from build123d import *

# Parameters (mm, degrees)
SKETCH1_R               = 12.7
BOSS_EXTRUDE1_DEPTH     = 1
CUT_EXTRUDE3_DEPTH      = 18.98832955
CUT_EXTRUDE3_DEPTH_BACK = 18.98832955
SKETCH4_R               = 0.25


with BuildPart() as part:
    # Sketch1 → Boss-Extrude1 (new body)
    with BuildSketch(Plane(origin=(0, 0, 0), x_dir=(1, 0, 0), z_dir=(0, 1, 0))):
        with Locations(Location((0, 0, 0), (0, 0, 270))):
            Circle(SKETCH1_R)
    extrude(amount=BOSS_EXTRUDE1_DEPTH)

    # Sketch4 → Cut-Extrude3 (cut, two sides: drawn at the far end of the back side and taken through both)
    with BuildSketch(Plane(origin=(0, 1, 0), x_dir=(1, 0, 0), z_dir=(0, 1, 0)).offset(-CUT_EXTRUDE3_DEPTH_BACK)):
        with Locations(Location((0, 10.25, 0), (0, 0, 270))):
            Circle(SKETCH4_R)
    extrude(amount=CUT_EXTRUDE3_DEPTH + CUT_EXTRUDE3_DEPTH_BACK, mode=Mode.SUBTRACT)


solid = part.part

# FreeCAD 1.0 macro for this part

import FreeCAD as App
import Part
import Sketcher

V = App.Vector
Q = App.Units.Quantity

doc = App.newDocument("Part")
body = doc.addObject("PartDesign::Body", "Body")

sketch1 = body.newObject("Sketcher::SketchObject", "Sketch")
sketch1.AttachmentSupport = (doc.getObject("XZ_Plane"), [""])
sketch1.MapMode = "FlatFace"
sketch1.addGeometry(Part.Circle(V(0, 0, 0), V(0, 0, 1), 13), False)
sketch1.addConstraint([
    Sketcher.Constraint("Coincident", 0, 3, -1, 1),
    Sketcher.Constraint("Diameter", 0, Q("25.4 mm")),
])
pad1 = body.newObject("PartDesign::Pad", "Pad")
pad1.Profile = sketch1
pad1.Length = 1
pad1.Reversed = True

sketch2 = body.newObject("Sketcher::SketchObject", "Sketch001")
sketch2.AttachmentSupport = (doc.getObject("XZ_Plane"), [""])
sketch2.MapMode = "FlatFace"
sketch2.AttachmentOffset = App.Placement(V(0, 0, -1), App.Rotation())
sketch2.addGeometry(Part.Circle(V(0, -10.25, 0), V(0, 0, 1), 0.25), False)
sketch2.addConstraint([
    Sketcher.Constraint("PointOnObject", 0, 3, -2),
    Sketcher.Constraint("Diameter", 0, Q("0.5 mm")),
    Sketcher.Constraint("DistanceY", 0, 3, -1, 1, Q("10.25 mm")),
])
pocket1 = body.newObject("PartDesign::Pocket", "Pocket")
pocket1.Profile = sketch2
pocket1.Type = "ThroughAll"
pocket1.Midplane = True

doc.recompute()
